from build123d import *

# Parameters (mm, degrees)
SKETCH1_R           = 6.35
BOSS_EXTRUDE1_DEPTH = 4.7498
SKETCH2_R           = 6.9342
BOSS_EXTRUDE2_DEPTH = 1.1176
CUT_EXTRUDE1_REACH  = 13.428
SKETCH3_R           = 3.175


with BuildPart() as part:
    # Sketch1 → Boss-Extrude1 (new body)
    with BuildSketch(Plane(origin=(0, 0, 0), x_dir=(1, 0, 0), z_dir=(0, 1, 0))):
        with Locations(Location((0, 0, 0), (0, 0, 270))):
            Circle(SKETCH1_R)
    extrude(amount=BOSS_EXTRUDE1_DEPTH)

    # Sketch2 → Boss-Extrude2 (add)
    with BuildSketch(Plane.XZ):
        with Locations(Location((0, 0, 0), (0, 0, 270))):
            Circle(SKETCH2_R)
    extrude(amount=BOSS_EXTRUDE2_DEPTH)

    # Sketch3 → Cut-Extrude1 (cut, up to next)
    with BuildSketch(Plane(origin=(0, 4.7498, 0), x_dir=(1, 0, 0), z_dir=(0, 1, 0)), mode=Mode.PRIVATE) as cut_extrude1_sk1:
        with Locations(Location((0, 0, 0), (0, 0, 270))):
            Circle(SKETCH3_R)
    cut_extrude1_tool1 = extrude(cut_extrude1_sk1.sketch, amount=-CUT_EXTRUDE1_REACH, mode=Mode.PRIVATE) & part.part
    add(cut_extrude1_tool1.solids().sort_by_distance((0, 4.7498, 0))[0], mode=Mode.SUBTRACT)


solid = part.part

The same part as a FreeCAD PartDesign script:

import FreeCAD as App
import Part
import Sketcher
Q = App.Units.Quantity

doc = App.newDocument("Part")
params = doc.addObject("Spreadsheet::Sheet", "Params")
for row, (alias, value) in enumerate([
    ("sketch1_diameter", "0.5 in"),
    ("pad1_length", "0.187 in"),
    ("sketch2_diameter", "0.546 in"),
    ("pad2_length", "0.044 in"),
    ("sketch3_diameter", "0.25 in"),
], start=1):
    params.set(f"A{row}", alias)
    params.set(f"B{row}", "=" + value)
    params.setAlias(f"B{row}", alias)

body = doc.addObject("PartDesign::Body", "Body")

sketch1 = doc.addObject("Sketcher::SketchObject", "Sketch")
body.addObject(sketch1)
sketch1.AttachmentSupport = (doc.XZ_Plane, [""])
sketch1.MapMode = "FlatFace"
sketch1.addGeometry(Part.Circle(App.Vector(0, 0, 0), App.Vector(0, 0, 1), 6.35), False)
sketch1.addConstraint([
    Sketcher.Constraint("Coincident", 0, 3, -1, 1),
    Sketcher.Constraint("Diameter", 0, Q("0.5 in")),
])
sketch1.setExpression("Constraints[1]", "Params.sketch1_diameter")
pad1 = doc.addObject("PartDesign::Pad", "Pad")
body.addObject(pad1)
pad1.Profile = sketch1
pad1.setExpression("Length", "Params.pad1_length")
pad1.Reversed = True

sketch2 = doc.addObject("Sketcher::SketchObject", "Sketch001")
body.addObject(sketch2)
sketch2.AttachmentSupport = (doc.XZ_Plane, [""])
sketch2.MapMode = "FlatFace"
sketch2.addGeometry(Part.Circle(App.Vector(0, 0, 0), App.Vector(0, 0, 1), 6.9342), False)
sketch2.addConstraint([
    Sketcher.Constraint("Coincident", 0, 3, -1, 1),
    Sketcher.Constraint("Diameter", 0, Q("0.546 in")),
])
sketch2.setExpression("Constraints[1]", "Params.sketch2_diameter")
pad2 = doc.addObject("PartDesign::Pad", "Pad001")
body.addObject(pad2)
pad2.Profile = sketch2
pad2.setExpression("Length", "Params.pad2_length")

sketch3 = doc.addObject("Sketcher::SketchObject", "Sketch002")
body.addObject(sketch3)
sketch3.AttachmentSupport = (doc.XZ_Plane, [""])
sketch3.MapMode = "FlatFace"
sketch3.AttachmentOffset = App.Placement(App.Vector(0, 0, -0.187 * 25.4), App.Rotation())
sketch3.addGeometry(Part.Circle(App.Vector(0, 0, 0), App.Vector(0, 0, 1), 3.175), False)
sketch3.addConstraint([
    Sketcher.Constraint("Coincident", 0, 3, -1, 1),
    Sketcher.Constraint("Diameter", 0, Q("0.25 in")),
])
sketch3.setExpression("Constraints[1]", "Params.sketch3_diameter")
pocket1 = doc.addObject("PartDesign::Pocket", "Pocket")
body.addObject(pocket1)
pocket1.Profile = sketch3
pocket1.Type = "UpToFirst"
pocket1.Reversed = True

doc.recompute()
